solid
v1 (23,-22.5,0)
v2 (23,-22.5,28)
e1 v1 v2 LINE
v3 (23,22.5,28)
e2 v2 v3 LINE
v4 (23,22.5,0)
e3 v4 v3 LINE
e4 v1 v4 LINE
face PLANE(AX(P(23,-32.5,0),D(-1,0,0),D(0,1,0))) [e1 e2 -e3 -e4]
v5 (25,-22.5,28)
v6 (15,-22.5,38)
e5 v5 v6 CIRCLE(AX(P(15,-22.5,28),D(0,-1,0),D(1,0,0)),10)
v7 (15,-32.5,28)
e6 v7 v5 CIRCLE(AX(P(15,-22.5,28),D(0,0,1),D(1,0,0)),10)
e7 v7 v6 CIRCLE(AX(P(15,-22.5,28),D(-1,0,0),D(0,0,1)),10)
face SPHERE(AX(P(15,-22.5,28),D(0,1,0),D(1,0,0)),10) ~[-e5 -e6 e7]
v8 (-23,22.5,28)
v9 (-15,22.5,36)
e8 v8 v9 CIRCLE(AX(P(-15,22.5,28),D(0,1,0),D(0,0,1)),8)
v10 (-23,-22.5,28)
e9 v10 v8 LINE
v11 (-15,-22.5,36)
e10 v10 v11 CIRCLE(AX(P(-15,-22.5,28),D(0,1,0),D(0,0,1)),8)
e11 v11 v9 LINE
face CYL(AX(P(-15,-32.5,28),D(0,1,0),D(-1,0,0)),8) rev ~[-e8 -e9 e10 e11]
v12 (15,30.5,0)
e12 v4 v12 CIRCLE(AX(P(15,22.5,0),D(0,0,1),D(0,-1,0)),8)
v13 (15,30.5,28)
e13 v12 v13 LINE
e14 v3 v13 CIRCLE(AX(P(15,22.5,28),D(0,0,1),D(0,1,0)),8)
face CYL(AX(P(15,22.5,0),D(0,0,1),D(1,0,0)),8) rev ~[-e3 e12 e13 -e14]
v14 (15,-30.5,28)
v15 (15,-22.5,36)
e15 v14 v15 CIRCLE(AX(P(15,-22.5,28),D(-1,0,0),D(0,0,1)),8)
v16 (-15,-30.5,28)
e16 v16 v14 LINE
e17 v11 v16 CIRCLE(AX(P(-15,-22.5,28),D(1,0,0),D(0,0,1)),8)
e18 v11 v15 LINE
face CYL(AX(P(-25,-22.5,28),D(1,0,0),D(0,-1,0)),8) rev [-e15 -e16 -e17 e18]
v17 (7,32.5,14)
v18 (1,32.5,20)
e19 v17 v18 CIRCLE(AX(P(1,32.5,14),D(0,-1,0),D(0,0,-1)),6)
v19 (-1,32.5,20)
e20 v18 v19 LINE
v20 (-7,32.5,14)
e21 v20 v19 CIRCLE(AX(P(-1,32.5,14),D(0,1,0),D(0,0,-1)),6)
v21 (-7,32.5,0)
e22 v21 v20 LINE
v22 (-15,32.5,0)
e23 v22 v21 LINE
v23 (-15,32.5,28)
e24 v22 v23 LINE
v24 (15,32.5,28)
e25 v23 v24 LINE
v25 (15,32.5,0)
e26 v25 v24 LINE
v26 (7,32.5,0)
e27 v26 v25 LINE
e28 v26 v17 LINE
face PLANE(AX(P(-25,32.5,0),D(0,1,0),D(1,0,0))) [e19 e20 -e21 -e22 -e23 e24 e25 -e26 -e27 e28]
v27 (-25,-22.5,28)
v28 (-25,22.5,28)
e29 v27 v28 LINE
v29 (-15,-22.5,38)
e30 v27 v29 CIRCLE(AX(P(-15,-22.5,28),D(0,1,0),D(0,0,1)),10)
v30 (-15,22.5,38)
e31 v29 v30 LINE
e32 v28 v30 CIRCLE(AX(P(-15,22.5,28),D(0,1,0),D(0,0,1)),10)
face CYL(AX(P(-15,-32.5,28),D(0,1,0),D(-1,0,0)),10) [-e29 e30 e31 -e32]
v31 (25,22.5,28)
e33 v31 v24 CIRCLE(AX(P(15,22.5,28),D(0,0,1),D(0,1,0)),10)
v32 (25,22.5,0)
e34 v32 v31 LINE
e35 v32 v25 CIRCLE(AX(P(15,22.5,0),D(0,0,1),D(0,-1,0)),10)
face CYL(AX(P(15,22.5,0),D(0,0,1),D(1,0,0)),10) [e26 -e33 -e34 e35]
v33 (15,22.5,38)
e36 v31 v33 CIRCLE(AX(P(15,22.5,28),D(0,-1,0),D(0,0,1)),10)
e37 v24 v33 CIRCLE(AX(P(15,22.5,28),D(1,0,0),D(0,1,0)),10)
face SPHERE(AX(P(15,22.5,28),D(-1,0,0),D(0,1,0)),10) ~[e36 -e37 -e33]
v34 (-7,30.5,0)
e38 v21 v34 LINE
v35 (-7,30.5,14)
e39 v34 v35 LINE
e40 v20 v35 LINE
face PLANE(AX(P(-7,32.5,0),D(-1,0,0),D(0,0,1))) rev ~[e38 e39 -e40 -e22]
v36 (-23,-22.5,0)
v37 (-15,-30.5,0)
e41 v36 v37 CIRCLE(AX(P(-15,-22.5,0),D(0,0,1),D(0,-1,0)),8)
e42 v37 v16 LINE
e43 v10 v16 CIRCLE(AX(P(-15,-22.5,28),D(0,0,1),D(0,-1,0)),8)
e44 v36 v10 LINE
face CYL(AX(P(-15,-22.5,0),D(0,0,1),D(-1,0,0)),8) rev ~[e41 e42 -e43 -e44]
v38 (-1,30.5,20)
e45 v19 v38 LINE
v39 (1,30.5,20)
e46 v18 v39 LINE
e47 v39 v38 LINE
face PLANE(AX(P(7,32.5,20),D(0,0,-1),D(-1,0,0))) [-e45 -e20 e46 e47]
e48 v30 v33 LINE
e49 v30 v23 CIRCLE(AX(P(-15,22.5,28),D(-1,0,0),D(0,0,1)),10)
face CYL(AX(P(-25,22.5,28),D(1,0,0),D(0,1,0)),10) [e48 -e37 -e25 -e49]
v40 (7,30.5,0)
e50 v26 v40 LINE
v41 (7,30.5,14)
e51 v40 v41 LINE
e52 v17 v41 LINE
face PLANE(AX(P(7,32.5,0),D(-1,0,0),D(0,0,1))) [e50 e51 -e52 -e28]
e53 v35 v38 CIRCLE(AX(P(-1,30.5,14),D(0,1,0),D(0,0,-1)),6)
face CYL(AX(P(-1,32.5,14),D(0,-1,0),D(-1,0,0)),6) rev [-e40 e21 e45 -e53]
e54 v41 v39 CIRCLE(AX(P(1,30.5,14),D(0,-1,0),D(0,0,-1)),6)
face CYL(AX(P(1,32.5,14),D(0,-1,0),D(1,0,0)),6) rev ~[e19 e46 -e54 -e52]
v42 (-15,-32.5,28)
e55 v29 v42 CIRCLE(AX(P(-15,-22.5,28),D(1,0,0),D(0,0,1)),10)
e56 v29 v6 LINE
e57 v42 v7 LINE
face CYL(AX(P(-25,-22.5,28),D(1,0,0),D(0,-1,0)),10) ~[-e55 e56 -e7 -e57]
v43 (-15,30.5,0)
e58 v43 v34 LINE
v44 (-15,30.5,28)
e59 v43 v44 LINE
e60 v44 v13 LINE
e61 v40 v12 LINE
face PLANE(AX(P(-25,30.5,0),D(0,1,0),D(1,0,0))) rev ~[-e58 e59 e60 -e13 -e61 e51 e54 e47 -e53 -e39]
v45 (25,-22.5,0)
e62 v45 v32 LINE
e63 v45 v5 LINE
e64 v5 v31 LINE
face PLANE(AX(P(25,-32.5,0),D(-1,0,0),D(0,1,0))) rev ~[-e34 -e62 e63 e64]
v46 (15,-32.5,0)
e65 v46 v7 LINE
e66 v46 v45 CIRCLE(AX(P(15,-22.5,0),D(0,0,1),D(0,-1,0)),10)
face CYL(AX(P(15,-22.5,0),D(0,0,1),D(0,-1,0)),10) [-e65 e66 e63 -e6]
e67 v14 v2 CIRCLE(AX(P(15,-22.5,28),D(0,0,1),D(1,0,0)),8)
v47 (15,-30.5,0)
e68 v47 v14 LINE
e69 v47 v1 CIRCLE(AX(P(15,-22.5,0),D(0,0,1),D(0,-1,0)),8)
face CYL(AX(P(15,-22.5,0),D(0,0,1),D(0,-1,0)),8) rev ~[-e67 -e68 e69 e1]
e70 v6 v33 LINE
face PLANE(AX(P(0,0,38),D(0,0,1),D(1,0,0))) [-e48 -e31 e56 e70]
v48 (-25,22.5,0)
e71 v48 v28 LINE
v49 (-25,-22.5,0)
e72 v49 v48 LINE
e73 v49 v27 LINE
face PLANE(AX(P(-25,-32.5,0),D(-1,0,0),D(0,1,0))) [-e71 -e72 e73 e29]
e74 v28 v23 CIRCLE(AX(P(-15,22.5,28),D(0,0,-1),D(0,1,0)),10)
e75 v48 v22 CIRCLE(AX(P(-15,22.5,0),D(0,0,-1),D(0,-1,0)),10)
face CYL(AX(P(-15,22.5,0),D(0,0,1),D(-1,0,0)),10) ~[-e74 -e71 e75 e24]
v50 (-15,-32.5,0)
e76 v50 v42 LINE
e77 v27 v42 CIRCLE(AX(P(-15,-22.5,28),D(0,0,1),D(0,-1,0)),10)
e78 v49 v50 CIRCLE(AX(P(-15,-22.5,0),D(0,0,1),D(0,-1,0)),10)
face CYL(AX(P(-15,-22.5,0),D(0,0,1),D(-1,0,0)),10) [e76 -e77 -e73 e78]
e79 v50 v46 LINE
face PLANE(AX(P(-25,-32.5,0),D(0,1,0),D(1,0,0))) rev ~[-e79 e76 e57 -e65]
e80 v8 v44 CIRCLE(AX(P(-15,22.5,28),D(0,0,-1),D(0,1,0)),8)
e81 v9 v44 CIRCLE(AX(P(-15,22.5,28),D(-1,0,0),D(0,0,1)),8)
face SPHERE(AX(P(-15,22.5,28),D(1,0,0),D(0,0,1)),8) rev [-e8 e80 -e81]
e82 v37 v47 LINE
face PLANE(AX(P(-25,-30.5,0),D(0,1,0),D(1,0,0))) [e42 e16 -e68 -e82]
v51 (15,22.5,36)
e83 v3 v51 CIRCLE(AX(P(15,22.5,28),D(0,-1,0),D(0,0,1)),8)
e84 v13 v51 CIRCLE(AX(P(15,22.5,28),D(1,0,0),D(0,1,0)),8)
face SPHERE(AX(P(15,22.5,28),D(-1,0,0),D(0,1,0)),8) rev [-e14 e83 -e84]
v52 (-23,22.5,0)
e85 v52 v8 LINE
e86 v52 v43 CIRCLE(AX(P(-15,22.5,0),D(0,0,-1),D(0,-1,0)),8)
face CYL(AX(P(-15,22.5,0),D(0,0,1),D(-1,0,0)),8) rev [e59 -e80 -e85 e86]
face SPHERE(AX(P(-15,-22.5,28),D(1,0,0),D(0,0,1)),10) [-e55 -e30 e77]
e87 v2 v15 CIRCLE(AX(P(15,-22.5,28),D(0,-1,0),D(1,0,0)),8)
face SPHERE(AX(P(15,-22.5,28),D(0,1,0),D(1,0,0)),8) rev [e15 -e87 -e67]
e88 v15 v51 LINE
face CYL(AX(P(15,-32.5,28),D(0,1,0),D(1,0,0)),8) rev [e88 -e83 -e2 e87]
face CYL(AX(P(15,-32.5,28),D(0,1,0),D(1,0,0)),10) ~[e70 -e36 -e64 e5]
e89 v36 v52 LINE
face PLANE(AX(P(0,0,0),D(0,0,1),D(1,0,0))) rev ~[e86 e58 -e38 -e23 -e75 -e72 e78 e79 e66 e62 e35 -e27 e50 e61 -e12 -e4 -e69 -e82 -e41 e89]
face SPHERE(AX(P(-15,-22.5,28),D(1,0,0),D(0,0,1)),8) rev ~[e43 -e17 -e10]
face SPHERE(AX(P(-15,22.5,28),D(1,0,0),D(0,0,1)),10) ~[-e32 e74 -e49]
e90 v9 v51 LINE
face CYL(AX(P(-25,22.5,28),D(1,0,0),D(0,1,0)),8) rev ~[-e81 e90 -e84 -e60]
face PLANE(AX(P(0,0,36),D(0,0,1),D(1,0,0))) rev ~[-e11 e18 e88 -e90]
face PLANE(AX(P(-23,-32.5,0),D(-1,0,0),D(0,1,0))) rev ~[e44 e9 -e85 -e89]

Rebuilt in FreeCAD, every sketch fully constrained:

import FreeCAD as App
import Part
import Sketcher
from FreeCAD import Vector


def edges_at(feature, points):
    """Names of the edges that pass closest to the given points."""
    edges = feature.Shape.Edges
    near = lambda p: min(range(len(edges)), key=lambda i: edges[i].distToShape(Part.Vertex(*p))[0])
    return sorted({f"Edge{near(p) + 1}" for p in points})


def faces_at(feature, points):
    """Names of the faces that lie closest to the given points."""
    faces = feature.Shape.Faces
    near = lambda p: min(range(len(faces)), key=lambda i: faces[i].distToShape(Part.Vertex(*p))[0])
    return sorted({f"Face{near(p) + 1}" for p in points})


def add_polygon(sketch, points):
    """Adds a closed chain of lines whose ends are joined by coincident constraints."""
    first, n = sketch.GeometryCount, len(points)
    for a, b in zip(points, points[1:] + points[:1]):
        sketch.addGeometry(Part.LineSegment(App.Vector(*a, 0), App.Vector(*b, 0)), False)
    for i in range(n):
        sketch.addConstraint(Sketcher.Constraint("Coincident", first + i, 2, first + (i + 1) % n, 1))

doc = App.newDocument("Part")
params = doc.addObject("Spreadsheet::Sheet", "Params")
for row, (alias, value) in enumerate([
    ("sketch1_width", "50 mm"),
    ("sketch1_height", "65 mm"),
    ("pad1_length", "38 mm"),
    ("fillet_radius", "10 mm"),
    ("thickness_wall", "2 mm"),
    ("sketch2_width", "14 mm"),
    ("sketch2_height", "20 mm"),
    ("pocket1_length", "25 mm"),
    ("fillet2_radius", "6 mm"),
], start=1):
    params.set(f"A{row}", alias)
    params.set(f"B{row}", "=" + value)
    params.setAlias(f"B{row}", alias)

body = doc.addObject("PartDesign::Body", "Body")

sketch1 = body.newObject("Sketcher::SketchObject", "Sketch")
sketch1.AttachmentSupport = (doc.getObject("XY_Plane"), [""])
sketch1.MapMode = "FlatFace"
add_polygon(sketch1, [(-25, 32), (-25, -32), (25, -32), (25, 32)])
sketch1.addConstraint(Sketcher.Constraint("Vertical", 0))
sketch1.addConstraint(Sketcher.Constraint("Horizontal", 1))
sketch1.addConstraint(Sketcher.Constraint("Vertical", 2))
sketch1.addConstraint(Sketcher.Constraint("Horizontal", 3))
sketch1.addConstraint(Sketcher.Constraint("Symmetric", 0, 2, 2, 2, -1, 1))
sketch1.addConstraint(Sketcher.Constraint("DistanceX", 1, 1, 1, 2, 50.0))
sketch1.addConstraint(Sketcher.Constraint("DistanceY", 0, 2, 0, 1, 65.0))
sketch1.setExpression("Constraints[9]", "Params.sketch1_width")
sketch1.setExpression("Constraints[10]", "Params.sketch1_height")
pad1 = body.newObject("PartDesign::Pad", "Pad")
pad1.Profile = sketch1
pad1.setExpression("Length", "Params.pad1_length")
doc.recompute()

fillet = body.newObject("PartDesign::Fillet", "Fillet")
fillet.Base = (pad1, edges_at(pad1, [
    (0, 32.5, 38),
    (25, 32.5, 19),
    (25, 0, 38),
    (25, -32.5, 19),
    (0, -32.5, 38),
    (-25, 0, 38),
    (-25, 32.5, 19),
    (-25, -32.5, 19),
]))
fillet.setExpression("Radius", "Params.fillet_radius")
doc.recompute()

thickness = body.newObject("PartDesign::Thickness", "Thickness")
thickness.Base = (fillet, faces_at(fillet, [(0, 0, 0)]))
thickness.setExpression("Value", "Params.thickness_wall")
thickness.Reversed = True
thickness.Join = "Arc"

sketch2 = body.newObject("Sketcher::SketchObject", "Sketch001")
sketch2.AttachmentSupport = (doc.getObject("XZ_Plane"), [""])
sketch2.MapMode = "FlatFace"
sketch2.AttachmentOffset = App.Placement(Vector(0, 0, -32.5), App.Rotation())
add_polygon(sketch2, [(7, 20), (7, 0), (-7, 0), (-7, 20)])
sketch2.addConstraint(Sketcher.Constraint("Vertical", 0))
sketch2.addConstraint(Sketcher.Constraint("Horizontal", 1))
sketch2.addConstraint(Sketcher.Constraint("Vertical", 2))
sketch2.addConstraint(Sketcher.Constraint("Horizontal", 3))
sketch2.addConstraint(Sketcher.Constraint("Symmetric", 0, 2, 1, 2, -1, 1))
sketch2.addConstraint(Sketcher.Constraint("DistanceX", 1, 2, 1, 1, 14.0))
sketch2.addConstraint(Sketcher.Constraint("DistanceY", 0, 2, 0, 1, 20.0))
sketch2.setExpression("Constraints[9]", "Params.sketch2_width")
sketch2.setExpression("Constraints[10]", "Params.sketch2_height")
pocket1 = body.newObject("PartDesign::Pocket", "Pocket")
pocket1.Profile = sketch2
pocket1.setExpression("Length", "Params.pocket1_length")
pocket1.Reversed = True
doc.recompute()

fillet2 = body.newObject("PartDesign::Fillet", "Fillet001")
fillet2.Base = (pocket1, edges_at(pocket1, [(7, 31.5, 20), (-7, 31.5, 20)]))
fillet2.setExpression("Radius", "Params.fillet2_radius")

doc.recompute()
